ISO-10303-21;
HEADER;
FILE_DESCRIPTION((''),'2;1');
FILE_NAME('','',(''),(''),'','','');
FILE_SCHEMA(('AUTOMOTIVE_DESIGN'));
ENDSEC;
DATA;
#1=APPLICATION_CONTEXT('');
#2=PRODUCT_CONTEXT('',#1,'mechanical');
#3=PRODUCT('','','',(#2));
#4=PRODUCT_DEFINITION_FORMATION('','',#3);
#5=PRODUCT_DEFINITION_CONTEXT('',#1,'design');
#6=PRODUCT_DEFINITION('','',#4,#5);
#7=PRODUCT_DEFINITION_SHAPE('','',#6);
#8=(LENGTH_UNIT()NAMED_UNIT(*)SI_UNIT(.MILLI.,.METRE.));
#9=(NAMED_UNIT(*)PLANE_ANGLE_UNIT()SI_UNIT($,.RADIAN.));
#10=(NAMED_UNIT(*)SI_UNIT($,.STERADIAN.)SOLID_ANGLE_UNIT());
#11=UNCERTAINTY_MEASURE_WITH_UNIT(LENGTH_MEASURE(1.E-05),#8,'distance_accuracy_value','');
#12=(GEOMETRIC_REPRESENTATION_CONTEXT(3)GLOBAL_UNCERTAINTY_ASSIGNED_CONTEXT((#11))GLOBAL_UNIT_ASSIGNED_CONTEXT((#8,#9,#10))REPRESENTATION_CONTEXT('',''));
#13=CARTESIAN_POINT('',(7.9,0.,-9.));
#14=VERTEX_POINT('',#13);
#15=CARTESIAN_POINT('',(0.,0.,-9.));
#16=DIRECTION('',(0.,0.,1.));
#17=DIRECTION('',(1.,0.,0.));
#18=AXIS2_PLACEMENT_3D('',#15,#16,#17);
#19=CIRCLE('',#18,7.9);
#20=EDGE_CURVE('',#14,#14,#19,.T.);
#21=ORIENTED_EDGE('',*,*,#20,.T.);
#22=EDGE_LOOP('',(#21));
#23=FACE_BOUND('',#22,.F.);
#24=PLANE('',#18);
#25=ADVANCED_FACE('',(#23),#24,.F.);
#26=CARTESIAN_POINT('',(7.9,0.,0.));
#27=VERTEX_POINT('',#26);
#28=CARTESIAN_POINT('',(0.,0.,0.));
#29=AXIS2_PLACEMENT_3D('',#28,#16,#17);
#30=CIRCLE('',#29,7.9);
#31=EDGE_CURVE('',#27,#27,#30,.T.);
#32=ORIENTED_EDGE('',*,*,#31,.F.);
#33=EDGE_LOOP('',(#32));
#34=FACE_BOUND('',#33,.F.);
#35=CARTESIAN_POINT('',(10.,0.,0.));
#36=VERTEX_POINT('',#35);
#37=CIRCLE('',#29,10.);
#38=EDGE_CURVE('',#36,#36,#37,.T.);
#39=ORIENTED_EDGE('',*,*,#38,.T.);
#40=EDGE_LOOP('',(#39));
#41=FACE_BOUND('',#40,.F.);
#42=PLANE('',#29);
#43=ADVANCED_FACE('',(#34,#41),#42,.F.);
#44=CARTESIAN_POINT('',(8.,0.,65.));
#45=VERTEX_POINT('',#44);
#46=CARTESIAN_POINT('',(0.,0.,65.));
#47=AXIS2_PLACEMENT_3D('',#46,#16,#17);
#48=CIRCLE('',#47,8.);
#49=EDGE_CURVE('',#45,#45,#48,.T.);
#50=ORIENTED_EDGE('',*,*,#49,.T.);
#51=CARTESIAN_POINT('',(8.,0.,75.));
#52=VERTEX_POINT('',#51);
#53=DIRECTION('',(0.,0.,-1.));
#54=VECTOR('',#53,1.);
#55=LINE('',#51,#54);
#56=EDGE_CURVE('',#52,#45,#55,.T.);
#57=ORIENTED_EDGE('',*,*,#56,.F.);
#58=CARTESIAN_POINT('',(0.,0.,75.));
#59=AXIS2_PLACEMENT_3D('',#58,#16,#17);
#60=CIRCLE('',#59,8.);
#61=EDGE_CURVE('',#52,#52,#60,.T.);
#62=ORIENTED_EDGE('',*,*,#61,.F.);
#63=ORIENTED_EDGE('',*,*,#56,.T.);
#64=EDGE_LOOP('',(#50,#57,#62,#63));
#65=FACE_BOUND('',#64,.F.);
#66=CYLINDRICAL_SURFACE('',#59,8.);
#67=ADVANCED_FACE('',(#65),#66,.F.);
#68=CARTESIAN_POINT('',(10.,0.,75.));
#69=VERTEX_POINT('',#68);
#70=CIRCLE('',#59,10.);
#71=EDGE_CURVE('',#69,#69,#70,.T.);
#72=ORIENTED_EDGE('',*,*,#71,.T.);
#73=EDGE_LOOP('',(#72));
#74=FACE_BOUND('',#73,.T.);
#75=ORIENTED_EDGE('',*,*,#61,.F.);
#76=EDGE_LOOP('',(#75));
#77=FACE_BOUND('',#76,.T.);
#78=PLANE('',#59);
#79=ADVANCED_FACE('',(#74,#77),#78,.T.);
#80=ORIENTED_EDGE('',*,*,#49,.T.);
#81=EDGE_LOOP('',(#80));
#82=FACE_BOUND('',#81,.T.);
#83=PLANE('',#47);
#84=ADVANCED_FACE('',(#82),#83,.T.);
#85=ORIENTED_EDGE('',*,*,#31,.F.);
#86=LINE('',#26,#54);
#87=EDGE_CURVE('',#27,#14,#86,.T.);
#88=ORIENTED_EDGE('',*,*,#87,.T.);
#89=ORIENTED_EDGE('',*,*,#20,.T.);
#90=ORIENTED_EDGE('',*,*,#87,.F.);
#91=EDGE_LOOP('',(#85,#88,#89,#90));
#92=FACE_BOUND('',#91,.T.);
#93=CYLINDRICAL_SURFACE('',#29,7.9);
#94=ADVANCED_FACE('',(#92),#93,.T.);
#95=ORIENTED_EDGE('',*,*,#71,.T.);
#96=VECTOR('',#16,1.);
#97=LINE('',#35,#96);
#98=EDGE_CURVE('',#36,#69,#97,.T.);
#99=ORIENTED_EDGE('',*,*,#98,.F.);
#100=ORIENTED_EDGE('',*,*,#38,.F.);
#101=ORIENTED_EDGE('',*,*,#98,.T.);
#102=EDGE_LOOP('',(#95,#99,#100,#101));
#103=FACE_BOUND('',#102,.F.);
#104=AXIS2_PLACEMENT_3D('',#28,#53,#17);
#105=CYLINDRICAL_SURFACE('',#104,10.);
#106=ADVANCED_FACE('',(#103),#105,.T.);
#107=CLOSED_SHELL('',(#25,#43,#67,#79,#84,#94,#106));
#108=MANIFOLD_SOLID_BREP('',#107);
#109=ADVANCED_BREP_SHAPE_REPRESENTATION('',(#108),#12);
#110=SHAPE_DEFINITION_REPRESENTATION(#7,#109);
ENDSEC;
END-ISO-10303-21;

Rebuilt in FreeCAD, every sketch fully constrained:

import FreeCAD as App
import Part
import Sketcher
Q = App.Units.Quantity

doc = App.newDocument("Part")
body = doc.addObject("PartDesign::Body", "Body")

# Sketch on XY plane
sketch1 = doc.addObject("Sketcher::SketchObject", "Sketch")
body.addObject(sketch1)
sketch1.AttachmentSupport = (doc.XY_Plane, [""])
sketch1.MapMode = "FlatFace"
sketch1.addGeometry(Part.Circle(App.Vector(0, 0, 0), App.Vector(0, 0, 1), 10), False)
sketch1.addConstraint(Sketcher.Constraint("Coincident", 0, 3, -1, 1))
sketch1.addConstraint(Sketcher.Constraint("Diameter", 0, Q("20 mm")))
pad1 = doc.addObject("PartDesign::Pad", "Pad")
body.addObject(pad1)
pad1.Profile = sketch1
pad1.Length = 75

# Sketch on XY plane
sketch2 = doc.addObject("Sketcher::SketchObject", "Sketch001")
body.addObject(sketch2)
sketch2.AttachmentSupport = (doc.XY_Plane, [""])
sketch2.MapMode = "FlatFace"
sketch2.addGeometry(Part.Circle(App.Vector(0, 0, 0), App.Vector(0, 0, 1), 8), False)
sketch2.addConstraint(Sketcher.Constraint("Coincident", 0, 3, -1, 1))
sketch2.addConstraint(Sketcher.Constraint("Diameter", 0, Q("15.8 mm")))
pad2 = doc.addObject("PartDesign::Pad", "Pad001")
body.addObject(pad2)
pad2.Profile = sketch2
pad2.Length = 9
pad2.Reversed = True

# Sketch on XY plane
sketch3 = doc.addObject("Sketcher::SketchObject", "Sketch002")
body.addObject(sketch3)
sketch3.AttachmentSupport = (doc.XY_Plane, [""])
sketch3.MapMode = "FlatFace"
sketch3.AttachmentOffset = App.Placement(App.Vector(0, 0, 75), App.Rotation())
sketch3.addGeometry(Part.Circle(App.Vector(0, 0, 0), App.Vector(0, 0, 1), 8), False)
sketch3.addConstraint(Sketcher.Constraint("Coincident", 0, 3, -1, 1))
sketch3.addConstraint(Sketcher.Constraint("Diameter", 0, Q("16 mm")))
pocket1 = doc.addObject("PartDesign::Pocket", "Pocket")
body.addObject(pocket1)
pocket1.Profile = sketch3
pocket1.Length = 10

doc.recompute()
